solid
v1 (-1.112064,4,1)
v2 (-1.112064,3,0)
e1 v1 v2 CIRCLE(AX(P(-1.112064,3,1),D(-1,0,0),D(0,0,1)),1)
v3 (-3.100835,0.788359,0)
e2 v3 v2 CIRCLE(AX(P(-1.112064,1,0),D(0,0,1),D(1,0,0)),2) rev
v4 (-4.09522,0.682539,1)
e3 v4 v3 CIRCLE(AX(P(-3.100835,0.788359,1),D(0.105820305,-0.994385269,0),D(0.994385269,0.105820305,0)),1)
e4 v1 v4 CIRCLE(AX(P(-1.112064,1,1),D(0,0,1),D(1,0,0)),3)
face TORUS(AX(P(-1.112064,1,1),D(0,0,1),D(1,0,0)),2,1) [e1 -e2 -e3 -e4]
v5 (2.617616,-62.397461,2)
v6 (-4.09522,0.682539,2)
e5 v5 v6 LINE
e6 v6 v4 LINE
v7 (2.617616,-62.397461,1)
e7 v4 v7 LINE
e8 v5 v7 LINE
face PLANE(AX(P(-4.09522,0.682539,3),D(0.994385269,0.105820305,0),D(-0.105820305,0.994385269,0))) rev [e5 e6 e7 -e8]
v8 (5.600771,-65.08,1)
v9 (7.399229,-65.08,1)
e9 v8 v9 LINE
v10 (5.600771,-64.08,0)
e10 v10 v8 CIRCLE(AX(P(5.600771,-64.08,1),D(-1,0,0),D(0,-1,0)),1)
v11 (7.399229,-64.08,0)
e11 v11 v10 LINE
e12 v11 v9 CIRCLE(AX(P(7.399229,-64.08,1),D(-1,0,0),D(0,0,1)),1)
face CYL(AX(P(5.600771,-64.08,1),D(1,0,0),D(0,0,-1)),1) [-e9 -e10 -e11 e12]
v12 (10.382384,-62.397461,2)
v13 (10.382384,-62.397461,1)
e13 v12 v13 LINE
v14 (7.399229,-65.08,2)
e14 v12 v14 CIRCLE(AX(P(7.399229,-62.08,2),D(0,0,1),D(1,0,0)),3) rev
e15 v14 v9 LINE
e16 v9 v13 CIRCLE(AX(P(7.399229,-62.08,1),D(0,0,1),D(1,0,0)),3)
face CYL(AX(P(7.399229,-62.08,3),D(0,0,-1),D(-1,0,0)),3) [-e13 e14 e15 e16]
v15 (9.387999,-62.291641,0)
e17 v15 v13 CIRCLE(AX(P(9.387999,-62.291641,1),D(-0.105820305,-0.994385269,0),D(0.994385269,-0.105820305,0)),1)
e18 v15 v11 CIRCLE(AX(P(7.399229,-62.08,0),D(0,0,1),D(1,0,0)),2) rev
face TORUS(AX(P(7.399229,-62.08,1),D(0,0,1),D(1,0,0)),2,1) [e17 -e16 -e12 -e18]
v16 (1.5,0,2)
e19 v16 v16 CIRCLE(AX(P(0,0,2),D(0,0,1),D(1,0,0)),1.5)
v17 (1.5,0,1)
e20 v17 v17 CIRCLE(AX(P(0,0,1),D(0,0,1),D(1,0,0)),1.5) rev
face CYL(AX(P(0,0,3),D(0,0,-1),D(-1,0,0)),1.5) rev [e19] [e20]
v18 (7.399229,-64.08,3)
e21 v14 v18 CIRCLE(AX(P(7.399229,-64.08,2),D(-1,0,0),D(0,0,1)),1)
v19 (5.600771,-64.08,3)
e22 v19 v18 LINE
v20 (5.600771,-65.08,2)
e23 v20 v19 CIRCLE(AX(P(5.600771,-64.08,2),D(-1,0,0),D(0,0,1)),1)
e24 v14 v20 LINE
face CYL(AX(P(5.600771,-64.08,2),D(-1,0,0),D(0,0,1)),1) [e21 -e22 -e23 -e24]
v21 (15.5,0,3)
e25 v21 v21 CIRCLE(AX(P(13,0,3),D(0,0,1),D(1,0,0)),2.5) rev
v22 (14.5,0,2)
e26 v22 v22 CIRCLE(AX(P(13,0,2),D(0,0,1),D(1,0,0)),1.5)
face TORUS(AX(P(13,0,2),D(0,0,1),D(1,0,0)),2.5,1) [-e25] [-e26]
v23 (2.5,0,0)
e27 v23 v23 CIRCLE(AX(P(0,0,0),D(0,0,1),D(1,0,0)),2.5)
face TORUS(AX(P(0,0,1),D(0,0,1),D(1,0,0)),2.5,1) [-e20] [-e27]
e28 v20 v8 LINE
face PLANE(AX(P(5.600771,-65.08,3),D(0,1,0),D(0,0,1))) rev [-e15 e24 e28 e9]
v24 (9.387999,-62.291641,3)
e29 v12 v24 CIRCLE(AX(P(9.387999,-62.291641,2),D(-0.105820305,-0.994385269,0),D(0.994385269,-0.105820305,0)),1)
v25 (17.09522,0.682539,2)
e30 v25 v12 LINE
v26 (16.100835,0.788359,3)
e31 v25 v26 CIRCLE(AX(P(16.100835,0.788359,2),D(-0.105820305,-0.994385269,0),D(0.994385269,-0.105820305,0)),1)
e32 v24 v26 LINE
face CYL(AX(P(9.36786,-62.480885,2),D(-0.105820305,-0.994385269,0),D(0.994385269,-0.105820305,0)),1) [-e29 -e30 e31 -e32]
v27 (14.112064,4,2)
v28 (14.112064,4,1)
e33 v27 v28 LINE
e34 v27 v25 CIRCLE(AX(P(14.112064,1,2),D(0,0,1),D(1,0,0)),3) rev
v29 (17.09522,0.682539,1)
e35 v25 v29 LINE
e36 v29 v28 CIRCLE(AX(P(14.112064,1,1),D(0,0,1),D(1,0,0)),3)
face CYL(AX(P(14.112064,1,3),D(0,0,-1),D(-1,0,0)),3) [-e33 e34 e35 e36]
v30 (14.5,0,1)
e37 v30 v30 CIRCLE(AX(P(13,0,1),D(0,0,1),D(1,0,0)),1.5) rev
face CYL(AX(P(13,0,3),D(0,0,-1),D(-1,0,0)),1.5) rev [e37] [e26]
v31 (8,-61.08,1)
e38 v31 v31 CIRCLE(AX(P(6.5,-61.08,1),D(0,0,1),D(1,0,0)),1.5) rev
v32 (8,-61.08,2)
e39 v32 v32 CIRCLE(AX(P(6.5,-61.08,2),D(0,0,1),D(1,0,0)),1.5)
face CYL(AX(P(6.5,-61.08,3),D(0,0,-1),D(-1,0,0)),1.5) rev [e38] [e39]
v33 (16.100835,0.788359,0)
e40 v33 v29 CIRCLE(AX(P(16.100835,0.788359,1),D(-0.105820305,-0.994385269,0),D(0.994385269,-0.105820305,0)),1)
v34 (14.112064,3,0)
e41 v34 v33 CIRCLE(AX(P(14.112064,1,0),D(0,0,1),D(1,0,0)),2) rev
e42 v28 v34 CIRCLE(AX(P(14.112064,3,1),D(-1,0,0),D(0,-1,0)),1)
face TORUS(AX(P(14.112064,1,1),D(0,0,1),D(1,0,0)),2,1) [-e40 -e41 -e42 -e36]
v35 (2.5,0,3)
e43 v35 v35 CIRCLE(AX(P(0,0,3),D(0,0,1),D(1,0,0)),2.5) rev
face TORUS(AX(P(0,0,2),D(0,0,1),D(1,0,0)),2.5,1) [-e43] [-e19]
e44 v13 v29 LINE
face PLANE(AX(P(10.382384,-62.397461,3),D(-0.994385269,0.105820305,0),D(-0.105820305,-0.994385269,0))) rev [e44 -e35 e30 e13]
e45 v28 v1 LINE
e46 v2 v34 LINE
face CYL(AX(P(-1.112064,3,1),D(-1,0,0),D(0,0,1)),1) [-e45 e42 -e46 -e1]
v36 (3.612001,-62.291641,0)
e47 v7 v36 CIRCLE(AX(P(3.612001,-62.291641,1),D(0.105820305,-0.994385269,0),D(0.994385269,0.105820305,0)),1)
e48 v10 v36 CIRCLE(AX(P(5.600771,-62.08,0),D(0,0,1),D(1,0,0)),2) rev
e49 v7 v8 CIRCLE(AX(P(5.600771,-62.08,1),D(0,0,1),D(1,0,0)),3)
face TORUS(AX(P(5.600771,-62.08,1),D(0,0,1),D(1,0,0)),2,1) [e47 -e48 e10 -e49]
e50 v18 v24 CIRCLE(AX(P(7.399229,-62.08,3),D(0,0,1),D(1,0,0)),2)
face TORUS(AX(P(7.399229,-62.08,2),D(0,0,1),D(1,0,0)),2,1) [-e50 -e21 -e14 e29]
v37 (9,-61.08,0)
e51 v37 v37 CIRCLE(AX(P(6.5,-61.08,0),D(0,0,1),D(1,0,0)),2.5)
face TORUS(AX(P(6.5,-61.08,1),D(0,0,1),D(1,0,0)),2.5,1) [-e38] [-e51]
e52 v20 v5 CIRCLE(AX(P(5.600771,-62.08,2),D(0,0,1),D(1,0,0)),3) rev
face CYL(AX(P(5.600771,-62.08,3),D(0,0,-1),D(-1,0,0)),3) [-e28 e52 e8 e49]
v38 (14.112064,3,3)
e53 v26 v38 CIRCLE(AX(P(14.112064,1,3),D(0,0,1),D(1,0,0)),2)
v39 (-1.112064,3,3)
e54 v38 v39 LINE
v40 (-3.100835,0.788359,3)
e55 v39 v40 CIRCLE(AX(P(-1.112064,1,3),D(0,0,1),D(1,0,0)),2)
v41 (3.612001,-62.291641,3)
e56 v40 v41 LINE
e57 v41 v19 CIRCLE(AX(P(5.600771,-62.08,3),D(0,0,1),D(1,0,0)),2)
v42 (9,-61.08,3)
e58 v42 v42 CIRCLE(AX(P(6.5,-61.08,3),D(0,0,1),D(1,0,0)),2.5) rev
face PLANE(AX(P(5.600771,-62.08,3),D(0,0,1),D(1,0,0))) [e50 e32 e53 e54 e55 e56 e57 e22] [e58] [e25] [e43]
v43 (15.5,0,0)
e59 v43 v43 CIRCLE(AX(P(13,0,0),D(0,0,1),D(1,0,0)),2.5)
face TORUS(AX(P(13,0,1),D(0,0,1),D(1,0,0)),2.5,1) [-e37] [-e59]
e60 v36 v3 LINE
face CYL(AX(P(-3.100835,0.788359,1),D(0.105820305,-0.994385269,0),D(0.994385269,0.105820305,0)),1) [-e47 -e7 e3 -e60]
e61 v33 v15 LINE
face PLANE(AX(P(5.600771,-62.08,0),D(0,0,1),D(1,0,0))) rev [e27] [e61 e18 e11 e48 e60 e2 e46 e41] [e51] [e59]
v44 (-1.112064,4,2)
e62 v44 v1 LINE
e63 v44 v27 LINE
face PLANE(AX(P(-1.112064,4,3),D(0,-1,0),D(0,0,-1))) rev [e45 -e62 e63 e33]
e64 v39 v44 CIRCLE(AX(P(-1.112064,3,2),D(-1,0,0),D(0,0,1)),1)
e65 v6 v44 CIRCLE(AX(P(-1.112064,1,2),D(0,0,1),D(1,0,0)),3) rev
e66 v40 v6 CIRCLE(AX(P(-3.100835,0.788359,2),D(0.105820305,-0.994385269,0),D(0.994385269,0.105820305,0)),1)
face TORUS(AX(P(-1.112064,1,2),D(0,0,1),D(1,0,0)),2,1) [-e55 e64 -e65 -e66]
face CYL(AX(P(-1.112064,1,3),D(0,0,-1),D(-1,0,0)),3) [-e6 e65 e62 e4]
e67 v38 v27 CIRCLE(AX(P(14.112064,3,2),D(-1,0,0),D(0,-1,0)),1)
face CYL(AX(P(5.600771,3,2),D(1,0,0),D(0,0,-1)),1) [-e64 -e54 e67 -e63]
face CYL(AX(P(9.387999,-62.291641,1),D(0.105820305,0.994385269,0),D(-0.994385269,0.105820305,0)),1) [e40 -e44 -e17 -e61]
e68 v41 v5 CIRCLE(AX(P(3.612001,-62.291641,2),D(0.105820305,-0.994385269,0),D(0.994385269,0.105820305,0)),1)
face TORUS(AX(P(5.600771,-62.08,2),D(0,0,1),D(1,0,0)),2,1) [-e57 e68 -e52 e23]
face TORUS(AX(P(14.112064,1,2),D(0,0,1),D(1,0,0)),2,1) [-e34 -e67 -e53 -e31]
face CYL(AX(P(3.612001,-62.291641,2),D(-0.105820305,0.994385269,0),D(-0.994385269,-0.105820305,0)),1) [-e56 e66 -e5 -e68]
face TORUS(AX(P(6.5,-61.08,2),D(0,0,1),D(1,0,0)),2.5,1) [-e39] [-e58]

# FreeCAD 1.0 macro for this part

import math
import FreeCAD as App
import Part
import Sketcher
from FreeCAD import Vector


def edges_at(feature, points):
    """Names of the edges that pass closest to the given points."""
    edges = feature.Shape.Edges
    near = lambda p: min(range(len(edges)), key=lambda i: edges[i].distToShape(Part.Vertex(*p))[0])
    return sorted({f"Edge{near(p) + 1}" for p in points})

doc = App.newDocument("Part")
params = doc.addObject("Spreadsheet::Sheet", "Params")
for row, (alias, value) in enumerate([
    ("sketch1_diameter", "3 mm"),
    ("sketch1_radius", "3 mm"),
    ("pad1_length", "3 mm"),
    ("fillet_radius", "1 mm"),
], start=1):
    params.set(f"A{row}", alias)
    params.set(f"B{row}", "=" + value)
    params.setAlias(f"B{row}", alias)

body = doc.addObject("PartDesign::Body", "Body")

# Sketch on XY plane
sketch1 = body.newObject("Sketcher::SketchObject", "Sketch")
sketch1.AttachmentSupport = (doc.getObject("XY_Plane"), [""])
sketch1.MapMode = "FlatFace"
sketch1.addGeometry([
    Part.LineSegment(Vector(-4.1, 0.7, 0), Vector(2.6, -62.4, 0)),  # 0
    Part.ArcOfCircle(Part.Circle(Vector(5.6, -62.1, 0), Vector(0, 0, 1), 3), math.radians(-174), math.radians(-90)),  # 1
    Part.LineSegment(Vector(5.6, -65.1, 0), Vector(7.4, -65.1, 0)),  # 2
    Part.ArcOfCircle(Part.Circle(Vector(7.4, -62.1, 0), Vector(0, 0, 1), 3), math.radians(-90), math.radians(-6)),  # 3
    Part.LineSegment(Vector(10.4, -62.4, 0), Vector(17.1, 0.7, 0)),  # 4
    Part.ArcOfCircle(Part.Circle(Vector(14.1, 1, 0), Vector(0, 0, 1), 3), math.radians(-6), math.radians(90)),  # 5
    Part.LineSegment(Vector(14.1, 4, 0), Vector(-1.1, 4, 0)),  # 6
    Part.ArcOfCircle(Part.Circle(Vector(-1.1, 1, 0), Vector(0, 0, 1), 3), math.radians(90), math.radians(186)),  # 7
    Part.Circle(Vector(6.5, -61.1, 0), Vector(0, 0, 1), 1.5),  # 8
    Part.Circle(Vector(0, 0, 0), Vector(0, 0, 1), 1.5),  # 9
    Part.Circle(Vector(13, 0, 0), Vector(0, 0, 1), 1.5),  # 10
], False)
sketch1.addConstraint([
    Sketcher.Constraint("Tangent", 0, 2, 1, 1),
    Sketcher.Constraint("Tangent", 1, 2, 2, 1),
    Sketcher.Constraint("Tangent", 2, 2, 3, 1),
    Sketcher.Constraint("Tangent", 3, 2, 4, 1),
    Sketcher.Constraint("Tangent", 4, 2, 5, 1),
    Sketcher.Constraint("Tangent", 5, 2, 6, 1),
    Sketcher.Constraint("Tangent", 6, 2, 7, 1),
    Sketcher.Constraint("Tangent", 7, 2, 0, 1),
    Sketcher.Constraint("Horizontal", 2),
    Sketcher.Constraint("Horizontal", 6),
    Sketcher.Constraint("Coincident", 9, 3, -1, 1),
    Sketcher.Constraint("Equal", 1, 3),
    Sketcher.Constraint("Equal", 3, 5),
    Sketcher.Constraint("Equal", 5, 7),
    Sketcher.Constraint("Equal", 8, 9),
    Sketcher.Constraint("Equal", 9, 10),
    Sketcher.Constraint("PointOnObject", 10, 3, -1),
    Sketcher.Constraint("Horizontal", 0, 2, 3, 2),
    Sketcher.Constraint("Diameter", 8, 3.0),
    Sketcher.Constraint("Radius", 1, 3.0),
    Sketcher.Constraint("DistanceY", -1, 1, 5, 3, 1.0),
    Sketcher.Constraint("DistanceX", -1, 1, 10, 3, 13.0),
    Sketcher.Constraint("DistanceY", 1, 3, 8, 3, 1.0),
    Sketcher.Constraint("DistanceX", -1, 1, 8, 3, 6.5),
    Sketcher.Constraint("DistanceY", 1, 3, -1, 1, 62.08),
    Sketcher.Constraint("DistanceX", 6, 2, 6, 1, 15.224128),
    Sketcher.Constraint("DistanceX", 2, 1, 2, 2, 1.798457),
    Sketcher.Constraint("DistanceX", -1, 1, 1, 3, 5.600771),
])
sketch1.setExpression("Constraints[18]", "Params.sketch1_diameter")
sketch1.setExpression("Constraints[19]", "Params.sketch1_radius")
pad1 = body.newObject("PartDesign::Pad", "Pad")
pad1.Profile = sketch1
pad1.setExpression("Length", "Params.pad1_length")
doc.recompute()

fillet = body.newObject("PartDesign::Fillet", "Fillet")
fillet.Base = (pad1, edges_at(pad1, [
    (13.739, -30.857, 0),
    (9.405, -64.311, 0),
    (6.5, -65.08, 0),
    (3.595, -64.311, 0),
    (9.405, -64.311, 3),
    (13.739, -30.857, 3),
    (16.343, 3.006, 3),
    (-1.5, 0, 0),
    (-1.5, 0, 3),
    (6.5, 4, 3),
    (11.5, 0, 0),
    (11.5, 0, 3),
    (-3.343, 3.006, 3),
    (5, -61.08, 0),
    (5, -61.08, 3),
    (-0.739, -30.857, 3),
    (3.595, -64.311, 3),
    (-0.739, -30.857, 0),
    (6.5, -65.08, 3),
    (-3.343, 3.006, 0),
    (6.5, 4, 0),
    (16.343, 3.006, 0),
]))
fillet.setExpression("Radius", "Params.fillet_radius")

doc.recompute()
